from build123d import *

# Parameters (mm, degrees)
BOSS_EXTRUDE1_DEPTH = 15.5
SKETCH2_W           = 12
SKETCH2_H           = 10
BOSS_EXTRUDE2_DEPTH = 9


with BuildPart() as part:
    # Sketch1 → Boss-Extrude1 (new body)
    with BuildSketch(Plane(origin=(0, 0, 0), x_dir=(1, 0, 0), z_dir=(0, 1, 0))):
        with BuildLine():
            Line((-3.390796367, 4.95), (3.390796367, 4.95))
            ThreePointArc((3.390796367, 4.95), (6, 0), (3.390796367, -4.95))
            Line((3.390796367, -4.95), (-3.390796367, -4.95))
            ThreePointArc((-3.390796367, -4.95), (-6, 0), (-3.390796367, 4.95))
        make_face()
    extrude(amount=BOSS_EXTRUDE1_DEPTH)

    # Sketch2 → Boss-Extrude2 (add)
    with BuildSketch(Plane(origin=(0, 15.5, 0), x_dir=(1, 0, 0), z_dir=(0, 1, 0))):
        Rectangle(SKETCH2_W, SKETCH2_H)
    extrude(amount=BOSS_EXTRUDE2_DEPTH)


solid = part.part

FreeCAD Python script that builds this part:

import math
import FreeCAD as App
import Part
import Sketcher
Q = App.Units.Quantity

doc = App.newDocument("Part")
body = doc.addObject("PartDesign::Body", "Body")

sketch1 = body.newObject("Sketcher::SketchObject", "Sketch")
sketch1.AttachmentSupport = (doc.getObject("XZ_Plane"), [""])
sketch1.MapMode = "FlatFace"
sketch1.addGeometry([
    Part.LineSegment(App.Vector(3.390796, -4.95, 0), App.Vector(-3.390796, -4.95, 0)),
    Part.ArcOfCircle(Part.Circle(App.Vector(0, 0, 0), App.Vector(0, 0, 1), 6), math.radians(124.411509), math.radians(235.588491)),
    Part.LineSegment(App.Vector(-3.390796, 4.95, 0), App.Vector(3.390796, 4.95, 0)),
    Part.ArcOfCircle(Part.Circle(App.Vector(0, 0, 0), App.Vector(0, 0, 1), 6), math.radians(-55.588491), math.radians(55.588491)),
], False)
sketch1.addConstraint([
    Sketcher.Constraint("Coincident", 0, 2, 1, 2),
    Sketcher.Constraint("Coincident", 1, 1, 2, 1),
    Sketcher.Constraint("Coincident", 2, 2, 3, 2),
    Sketcher.Constraint("Coincident", 3, 1, 0, 1),
    Sketcher.Constraint("Horizontal", 0),
    Sketcher.Constraint("Horizontal", 2),
    Sketcher.Constraint("Coincident", 1, 3, -1, 1),
    Sketcher.Constraint("Coincident", 3, 3, -1, 1),
    Sketcher.Constraint("Equal", 1, 3),
    Sketcher.Constraint("Vertical", 0, 2, 1, 1),
    Sketcher.Constraint("Radius", 1, Q("6 mm")),
    Sketcher.Constraint("DistanceY", 0, 2, 1, 1, Q("9.9 mm")),
])
pad1 = body.newObject("PartDesign::Pad", "Pad")
pad1.Profile = sketch1
pad1.Length = 15.5
pad1.Reversed = True

sketch2 = body.newObject("Sketcher::SketchObject", "Sketch001")
sketch2.AttachmentSupport = (doc.getObject("XZ_Plane"), [""])
sketch2.MapMode = "FlatFace"
sketch2.AttachmentOffset = App.Placement(App.Vector(0, 0, -15.5), App.Rotation())
sketch2.addGeometry([
    Part.LineSegment(App.Vector(-6, -5, 0), App.Vector(-6, 5, 0)),
    Part.LineSegment(App.Vector(-6, 5, 0), App.Vector(6, 5, 0)),
    Part.LineSegment(App.Vector(6, 5, 0), App.Vector(6, -5, 0)),
    Part.LineSegment(App.Vector(6, -5, 0), App.Vector(-6, -5, 0)),
], False)
sketch2.addConstraint([
    Sketcher.Constraint("Coincident", 0, 2, 1, 1),
    Sketcher.Constraint("Coincident", 1, 2, 2, 1),
    Sketcher.Constraint("Coincident", 2, 2, 3, 1),
    Sketcher.Constraint("Coincident", 3, 2, 0, 1),
    Sketcher.Constraint("Vertical", 0),
    Sketcher.Constraint("Horizontal", 1),
    Sketcher.Constraint("Vertical", 2),
    Sketcher.Constraint("Horizontal", 3),
    Sketcher.Constraint("Symmetric", 0, 2, 2, 2, -1, 1),
    Sketcher.Constraint("DistanceX", 1, 1, 1, 2, Q("12 mm")),
    Sketcher.Constraint("DistanceY", 0, 1, 0, 2, Q("10 mm")),
])
pad2 = body.newObject("PartDesign::Pad", "Pad001")
pad2.Profile = sketch2
pad2.Length = 9
pad2.Reversed = True

doc.recompute()
